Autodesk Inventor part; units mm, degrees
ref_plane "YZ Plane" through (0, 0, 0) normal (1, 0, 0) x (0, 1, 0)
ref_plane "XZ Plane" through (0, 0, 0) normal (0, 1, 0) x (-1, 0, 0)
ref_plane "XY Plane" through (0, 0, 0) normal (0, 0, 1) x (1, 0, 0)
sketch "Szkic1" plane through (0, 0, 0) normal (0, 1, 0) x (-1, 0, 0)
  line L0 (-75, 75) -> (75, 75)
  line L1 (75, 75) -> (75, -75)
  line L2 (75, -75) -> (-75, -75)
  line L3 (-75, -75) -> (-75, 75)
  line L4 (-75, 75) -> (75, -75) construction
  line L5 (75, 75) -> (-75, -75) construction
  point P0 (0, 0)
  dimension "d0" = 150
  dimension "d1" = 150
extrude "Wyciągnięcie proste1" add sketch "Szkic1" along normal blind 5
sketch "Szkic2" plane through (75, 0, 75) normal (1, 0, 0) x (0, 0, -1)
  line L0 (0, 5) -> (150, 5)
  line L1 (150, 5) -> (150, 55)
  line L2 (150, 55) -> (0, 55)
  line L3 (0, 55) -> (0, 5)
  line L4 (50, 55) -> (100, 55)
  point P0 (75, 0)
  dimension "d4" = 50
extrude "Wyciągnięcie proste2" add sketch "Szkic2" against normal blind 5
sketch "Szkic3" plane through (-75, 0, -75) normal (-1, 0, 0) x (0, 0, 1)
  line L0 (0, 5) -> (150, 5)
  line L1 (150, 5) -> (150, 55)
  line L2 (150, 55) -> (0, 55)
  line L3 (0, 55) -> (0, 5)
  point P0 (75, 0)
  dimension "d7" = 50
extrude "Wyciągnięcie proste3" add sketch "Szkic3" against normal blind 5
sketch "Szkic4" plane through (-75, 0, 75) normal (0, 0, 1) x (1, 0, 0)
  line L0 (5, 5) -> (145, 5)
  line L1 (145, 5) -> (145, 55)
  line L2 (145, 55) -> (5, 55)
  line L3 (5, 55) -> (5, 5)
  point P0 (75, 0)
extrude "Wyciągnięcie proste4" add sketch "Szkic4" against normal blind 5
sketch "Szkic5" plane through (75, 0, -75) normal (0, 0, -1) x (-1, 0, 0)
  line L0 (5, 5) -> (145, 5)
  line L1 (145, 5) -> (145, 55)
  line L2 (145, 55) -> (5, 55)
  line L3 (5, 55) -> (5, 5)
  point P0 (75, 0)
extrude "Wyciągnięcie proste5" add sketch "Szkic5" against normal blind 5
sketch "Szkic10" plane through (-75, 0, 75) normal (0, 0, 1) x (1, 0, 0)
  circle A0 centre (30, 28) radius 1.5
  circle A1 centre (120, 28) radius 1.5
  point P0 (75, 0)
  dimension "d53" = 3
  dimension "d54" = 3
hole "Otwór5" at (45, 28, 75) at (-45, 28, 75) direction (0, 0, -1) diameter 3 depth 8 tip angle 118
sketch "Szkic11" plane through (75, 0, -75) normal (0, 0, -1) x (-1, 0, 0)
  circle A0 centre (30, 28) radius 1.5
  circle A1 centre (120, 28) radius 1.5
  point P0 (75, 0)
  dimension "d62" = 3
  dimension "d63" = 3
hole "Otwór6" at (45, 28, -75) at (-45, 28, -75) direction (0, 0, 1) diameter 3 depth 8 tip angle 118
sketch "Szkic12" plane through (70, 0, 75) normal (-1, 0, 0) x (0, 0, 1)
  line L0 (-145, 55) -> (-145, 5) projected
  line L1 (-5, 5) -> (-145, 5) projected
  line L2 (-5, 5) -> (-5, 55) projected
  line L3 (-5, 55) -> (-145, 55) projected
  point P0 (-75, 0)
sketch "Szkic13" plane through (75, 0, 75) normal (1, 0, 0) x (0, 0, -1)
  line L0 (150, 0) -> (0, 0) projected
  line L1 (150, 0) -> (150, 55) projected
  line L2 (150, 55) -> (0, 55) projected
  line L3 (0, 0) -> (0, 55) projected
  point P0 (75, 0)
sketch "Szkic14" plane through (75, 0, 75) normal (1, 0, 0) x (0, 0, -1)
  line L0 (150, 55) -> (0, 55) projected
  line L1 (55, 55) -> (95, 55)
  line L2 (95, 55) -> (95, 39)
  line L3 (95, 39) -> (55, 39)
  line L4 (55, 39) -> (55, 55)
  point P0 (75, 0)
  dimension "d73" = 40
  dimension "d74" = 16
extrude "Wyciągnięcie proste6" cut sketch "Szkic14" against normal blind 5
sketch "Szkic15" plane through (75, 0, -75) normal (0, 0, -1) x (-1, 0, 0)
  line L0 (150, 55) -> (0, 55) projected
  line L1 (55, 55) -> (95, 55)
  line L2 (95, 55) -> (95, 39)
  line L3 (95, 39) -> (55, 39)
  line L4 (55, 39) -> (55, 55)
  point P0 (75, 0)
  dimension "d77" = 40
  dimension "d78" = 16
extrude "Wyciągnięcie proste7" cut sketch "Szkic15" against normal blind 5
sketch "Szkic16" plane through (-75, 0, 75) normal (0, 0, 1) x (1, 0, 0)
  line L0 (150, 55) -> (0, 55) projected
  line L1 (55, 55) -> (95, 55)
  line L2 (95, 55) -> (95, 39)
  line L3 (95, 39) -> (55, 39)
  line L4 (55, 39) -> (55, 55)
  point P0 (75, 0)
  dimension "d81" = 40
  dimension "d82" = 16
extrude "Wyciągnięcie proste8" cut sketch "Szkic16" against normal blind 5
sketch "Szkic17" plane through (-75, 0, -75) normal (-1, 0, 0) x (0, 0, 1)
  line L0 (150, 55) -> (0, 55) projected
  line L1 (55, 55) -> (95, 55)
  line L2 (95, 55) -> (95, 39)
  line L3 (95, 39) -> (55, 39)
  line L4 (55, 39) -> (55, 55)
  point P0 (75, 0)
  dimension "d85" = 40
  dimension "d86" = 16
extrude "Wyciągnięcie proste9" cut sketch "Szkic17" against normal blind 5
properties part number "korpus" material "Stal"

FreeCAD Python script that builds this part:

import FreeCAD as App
import Part
import Sketcher
from FreeCAD import Vector


def add_polygon(sketch, points):
    """Adds a closed chain of lines whose ends are joined by coincident constraints."""
    first, n = sketch.GeometryCount, len(points)
    for a, b in zip(points, points[1:] + points[:1]):
        sketch.addGeometry(Part.LineSegment(App.Vector(*a, 0), App.Vector(*b, 0)), False)
    for i in range(n):
        sketch.addConstraint(Sketcher.Constraint("Coincident", first + i, 2, first + (i + 1) % n, 1))

doc = App.newDocument("Part")
body = doc.addObject("PartDesign::Body", "Body")

# Sketch on XZ plane
sketch1 = doc.addObject("Sketcher::SketchObject", "Sketch")
body.addObject(sketch1)
sketch1.AttachmentSupport = (doc.XZ_Plane, [""])
sketch1.MapMode = "FlatFace"
add_polygon(sketch1, [(-75, 75), (75, 75), (75, -75), (-75, -75)])  # lines 0-3
sketch1.addConstraint(Sketcher.Constraint("Horizontal", 0))
sketch1.addConstraint(Sketcher.Constraint("Vertical", 1))
sketch1.addConstraint(Sketcher.Constraint("Horizontal", 2))
sketch1.addConstraint(Sketcher.Constraint("Vertical", 3))
sketch1.addConstraint(Sketcher.Constraint("Symmetric", 0, 2, 2, 2, -1, 1))
sketch1.addConstraint(Sketcher.Constraint("Equal", 2, 1))
sketch1.addConstraint(Sketcher.Constraint("DistanceX", 0, 1, 0, 2, 150.0))
pad1 = doc.addObject("PartDesign::Pad", "Pad")
body.addObject(pad1)
pad1.Profile = sketch1
pad1.Length = 5
pad1.Reversed = True

# Sketch on YZ plane
sketch2 = doc.addObject("Sketcher::SketchObject", "Sketch001")
body.addObject(sketch2)
sketch2.AttachmentSupport = (doc.YZ_Plane, [""])
sketch2.MapMode = "FlatFace"
sketch2.AttachmentOffset = App.Placement(Vector(0, 0, 75), App.Rotation())
add_polygon(sketch2, [(55, 75), (5, 75), (5, -75), (55, -75)])  # lines 0-3
sketch2.addConstraint(Sketcher.Constraint("Horizontal", 0))
sketch2.addConstraint(Sketcher.Constraint("Vertical", 1))
sketch2.addConstraint(Sketcher.Constraint("Horizontal", 2))
sketch2.addConstraint(Sketcher.Constraint("Vertical", 3))
sketch2.addConstraint(Sketcher.Constraint("DistanceX", 0, 2, 0, 1, 50.0))
sketch2.addConstraint(Sketcher.Constraint("DistanceY", 1, 2, 1, 1, 150.0))
sketch2.addConstraint(Sketcher.Constraint("DistanceX", -1, 1, 0, 2, 5.0))
sketch2.addConstraint(Sketcher.Constraint("DistanceY", -1, 1, 0, 2, 75.0))
pad2 = doc.addObject("PartDesign::Pad", "Pad001")
body.addObject(pad2)
pad2.Profile = sketch2
pad2.Length = 5
pad2.Reversed = True

# Sketch on YZ plane
sketch3 = doc.addObject("Sketcher::SketchObject", "Sketch002")
body.addObject(sketch3)
sketch3.AttachmentSupport = (doc.YZ_Plane, [""])
sketch3.MapMode = "FlatFace"
sketch3.AttachmentOffset = App.Placement(Vector(0, 0, -75), App.Rotation())
add_polygon(sketch3, [(55, -75), (5, -75), (5, 75), (55, 75)])  # lines 0-3
sketch3.addConstraint(Sketcher.Constraint("Horizontal", 0))
sketch3.addConstraint(Sketcher.Constraint("Vertical", 1))
sketch3.addConstraint(Sketcher.Constraint("Horizontal", 2))
sketch3.addConstraint(Sketcher.Constraint("Vertical", 3))
sketch3.addConstraint(Sketcher.Constraint("DistanceX", 0, 2, 0, 1, 50.0))
sketch3.addConstraint(Sketcher.Constraint("DistanceY", 1, 1, 1, 2, 150.0))
sketch3.addConstraint(Sketcher.Constraint("DistanceX", -1, 1, 0, 2, 5.0))
sketch3.addConstraint(Sketcher.Constraint("DistanceY", 0, 2, -1, 1, 75.0))
pad3 = doc.addObject("PartDesign::Pad", "Pad002")
body.addObject(pad3)
pad3.Profile = sketch3
pad3.Length = 5

# Sketch on XY plane
sketch4 = doc.addObject("Sketcher::SketchObject", "Sketch003")
body.addObject(sketch4)
sketch4.AttachmentSupport = (doc.XY_Plane, [""])
sketch4.MapMode = "FlatFace"
sketch4.AttachmentOffset = App.Placement(Vector(0, 0, 75), App.Rotation())
add_polygon(sketch4, [(-70, 55), (-70, 5), (70, 5), (70, 55)])  # lines 0-3
sketch4.addConstraint(Sketcher.Constraint("Vertical", 0))
sketch4.addConstraint(Sketcher.Constraint("Horizontal", 1))
sketch4.addConstraint(Sketcher.Constraint("Vertical", 2))
sketch4.addConstraint(Sketcher.Constraint("Horizontal", 3))
sketch4.addConstraint(Sketcher.Constraint("DistanceX", 1, 1, 1, 2, 140.0))
sketch4.addConstraint(Sketcher.Constraint("DistanceY", 0, 2, 0, 1, 50.0))
sketch4.addConstraint(Sketcher.Constraint("DistanceX", 0, 2, -1, 1, 70.0))
sketch4.addConstraint(Sketcher.Constraint("DistanceY", -1, 1, 0, 2, 5.0))
pad4 = doc.addObject("PartDesign::Pad", "Pad003")
body.addObject(pad4)
pad4.Profile = sketch4
pad4.Length = 5
pad4.Reversed = True

# Sketch on XY plane
sketch5 = doc.addObject("Sketcher::SketchObject", "Sketch004")
body.addObject(sketch5)
sketch5.AttachmentSupport = (doc.XY_Plane, [""])
sketch5.MapMode = "FlatFace"
sketch5.AttachmentOffset = App.Placement(Vector(0, 0, -75), App.Rotation())
add_polygon(sketch5, [(70, 55), (70, 5), (-70, 5), (-70, 55)])  # lines 0-3
sketch5.addConstraint(Sketcher.Constraint("Vertical", 0))
sketch5.addConstraint(Sketcher.Constraint("Horizontal", 1))
sketch5.addConstraint(Sketcher.Constraint("Vertical", 2))
sketch5.addConstraint(Sketcher.Constraint("Horizontal", 3))
sketch5.addConstraint(Sketcher.Constraint("DistanceX", 1, 2, 1, 1, 140.0))
sketch5.addConstraint(Sketcher.Constraint("DistanceY", 0, 2, 0, 1, 50.0))
sketch5.addConstraint(Sketcher.Constraint("DistanceX", -1, 1, 0, 2, 70.0))
sketch5.addConstraint(Sketcher.Constraint("DistanceY", -1, 1, 0, 2, 5.0))
pad5 = doc.addObject("PartDesign::Pad", "Pad004")
body.addObject(pad5)
pad5.Profile = sketch5
pad5.Length = 5

# Sketch on XY plane
sketch6 = doc.addObject("Sketcher::SketchObject", "Sketch005")
body.addObject(sketch6)
sketch6.AttachmentSupport = (doc.XY_Plane, [""])
sketch6.MapMode = "FlatFace"
sketch6.AttachmentOffset = App.Placement(Vector(0, 0, 75), App.Rotation())
sketch6.addGeometry(Part.Circle(Vector(45, 28, 0), Vector(0, 0, 1), 1.5), False)
sketch6.addGeometry(Part.Circle(Vector(-45, 28, 0), Vector(0, 0, 1), 1.5), False)
sketch6.addConstraint(Sketcher.Constraint("Equal", 0, 1))
sketch6.addConstraint(Sketcher.Constraint("Symmetric", 0, 3, 1, 3, -2))
sketch6.addConstraint(Sketcher.Constraint("Diameter", 0, 3.0))
sketch6.addConstraint(Sketcher.Constraint("DistanceX", -1, 1, 0, 3, 45.0))
sketch6.addConstraint(Sketcher.Constraint("DistanceY", -1, 1, 0, 3, 28.0))
doc.recompute()
hole = doc.addObject("PartDesign::Hole", "Hole")
body.addObject(hole)
hole.Profile = sketch6
hole.ThreadType = "None"
hole.Diameter = 3
hole.DepthType = "Dimension"
hole.Depth = 8
hole.DrillPoint = "Angled"
hole.DrillPointAngle = 118

# Sketch on XY plane
sketch7 = doc.addObject("Sketcher::SketchObject", "Sketch006")
body.addObject(sketch7)
sketch7.AttachmentSupport = (doc.XY_Plane, [""])
sketch7.MapMode = "FlatFace"
sketch7.AttachmentOffset = App.Placement(Vector(0, 0, -75), App.Rotation())
sketch7.addGeometry(Part.Circle(Vector(45, 28, 0), Vector(0, 0, 1), 1.5), False)
sketch7.addGeometry(Part.Circle(Vector(-45, 28, 0), Vector(0, 0, 1), 1.5), False)
sketch7.addConstraint(Sketcher.Constraint("Equal", 0, 1))
sketch7.addConstraint(Sketcher.Constraint("Symmetric", 0, 3, 1, 3, -2))
sketch7.addConstraint(Sketcher.Constraint("Diameter", 0, 3.0))
sketch7.addConstraint(Sketcher.Constraint("DistanceX", -1, 1, 0, 3, 45.0))
sketch7.addConstraint(Sketcher.Constraint("DistanceY", -1, 1, 0, 3, 28.0))
doc.recompute()
hole2 = doc.addObject("PartDesign::Hole", "Hole001")
body.addObject(hole2)
hole2.Profile = sketch7
hole2.ThreadType = "None"
hole2.Diameter = 3
hole2.DepthType = "Dimension"
hole2.Depth = 8
hole2.DrillPoint = "Angled"
hole2.DrillPointAngle = 118
hole2.Reversed = True

# Sketch on YZ plane
sketch8 = doc.addObject("Sketcher::SketchObject", "Sketch007")
body.addObject(sketch8)
sketch8.AttachmentSupport = (doc.YZ_Plane, [""])
sketch8.MapMode = "FlatFace"
sketch8.AttachmentOffset = App.Placement(Vector(0, 0, 75), App.Rotation())
add_polygon(sketch8, [(39, -20), (55, -20), (55, 20), (39, 20)])  # lines 0-3
sketch8.addConstraint(Sketcher.Constraint("Horizontal", 0))
sketch8.addConstraint(Sketcher.Constraint("Vertical", 1))
sketch8.addConstraint(Sketcher.Constraint("Horizontal", 2))
sketch8.addConstraint(Sketcher.Constraint("Vertical", 3))
sketch8.addConstraint(Sketcher.Constraint("DistanceX", 0, 1, 0, 2, 16.0))
sketch8.addConstraint(Sketcher.Constraint("DistanceY", 1, 1, 1, 2, 40.0))
sketch8.addConstraint(Sketcher.Constraint("DistanceX", -1, 1, 0, 2, 55.0))
sketch8.addConstraint(Sketcher.Constraint("DistanceY", 0, 2, -1, 1, 20.0))
pocket1 = doc.addObject("PartDesign::Pocket", "Pocket")
body.addObject(pocket1)
pocket1.Profile = sketch8
pocket1.Length = 5

# Sketch on XY plane
sketch9 = doc.addObject("Sketcher::SketchObject", "Sketch008")
body.addObject(sketch9)
sketch9.AttachmentSupport = (doc.XY_Plane, [""])
sketch9.MapMode = "FlatFace"
sketch9.AttachmentOffset = App.Placement(Vector(0, 0, -75), App.Rotation())
add_polygon(sketch9, [(-20, 39), (-20, 55), (20, 55), (20, 39)])  # lines 0-3
sketch9.addConstraint(Sketcher.Constraint("Vertical", 0))
sketch9.addConstraint(Sketcher.Constraint("Horizontal", 1))
sketch9.addConstraint(Sketcher.Constraint("Vertical", 2))
sketch9.addConstraint(Sketcher.Constraint("Horizontal", 3))
sketch9.addConstraint(Sketcher.Constraint("DistanceX", 1, 1, 1, 2, 40.0))
sketch9.addConstraint(Sketcher.Constraint("DistanceY", 0, 1, 0, 2, 16.0))
sketch9.addConstraint(Sketcher.Constraint("DistanceX", 0, 2, -1, 1, 20.0))
sketch9.addConstraint(Sketcher.Constraint("DistanceY", -1, 1, 0, 2, 55.0))
pocket2 = doc.addObject("PartDesign::Pocket", "Pocket001")
body.addObject(pocket2)
pocket2.Profile = sketch9
pocket2.Length = 5
pocket2.Reversed = True

# Sketch on XY plane
sketch10 = doc.addObject("Sketcher::SketchObject", "Sketch009")
body.addObject(sketch10)
sketch10.AttachmentSupport = (doc.XY_Plane, [""])
sketch10.MapMode = "FlatFace"
sketch10.AttachmentOffset = App.Placement(Vector(0, 0, 75), App.Rotation())
add_polygon(sketch10, [(20, 39), (20, 55), (-20, 55), (-20, 39)])  # lines 0-3
sketch10.addConstraint(Sketcher.Constraint("Vertical", 0))
sketch10.addConstraint(Sketcher.Constraint("Horizontal", 1))
sketch10.addConstraint(Sketcher.Constraint("Vertical", 2))
sketch10.addConstraint(Sketcher.Constraint("Horizontal", 3))
sketch10.addConstraint(Sketcher.Constraint("DistanceX", 1, 2, 1, 1, 40.0))
sketch10.addConstraint(Sketcher.Constraint("DistanceY", 0, 1, 0, 2, 16.0))
sketch10.addConstraint(Sketcher.Constraint("DistanceX", -1, 1, 0, 2, 20.0))
sketch10.addConstraint(Sketcher.Constraint("DistanceY", -1, 1, 0, 2, 55.0))
pocket3 = doc.addObject("PartDesign::Pocket", "Pocket002")
body.addObject(pocket3)
pocket3.Profile = sketch10
pocket3.Length = 5

# Sketch on YZ plane
sketch11 = doc.addObject("Sketcher::SketchObject", "Sketch010")
body.addObject(sketch11)
sketch11.AttachmentSupport = (doc.YZ_Plane, [""])
sketch11.MapMode = "FlatFace"
sketch11.AttachmentOffset = App.Placement(Vector(0, 0, -75), App.Rotation())
add_polygon(sketch11, [(39, 20), (55, 20), (55, -20), (39, -20)])  # lines 0-3
sketch11.addConstraint(Sketcher.Constraint("Horizontal", 0))
sketch11.addConstraint(Sketcher.Constraint("Vertical", 1))
sketch11.addConstraint(Sketcher.Constraint("Horizontal", 2))
sketch11.addConstraint(Sketcher.Constraint("Vertical", 3))
sketch11.addConstraint(Sketcher.Constraint("DistanceX", 0, 1, 0, 2, 16.0))
sketch11.addConstraint(Sketcher.Constraint("DistanceY", 1, 2, 1, 1, 40.0))
sketch11.addConstraint(Sketcher.Constraint("DistanceX", -1, 1, 0, 2, 55.0))
sketch11.addConstraint(Sketcher.Constraint("DistanceY", -1, 1, 0, 2, 20.0))
pocket4 = doc.addObject("PartDesign::Pocket", "Pocket003")
body.addObject(pocket4)
pocket4.Profile = sketch11
pocket4.Length = 5
pocket4.Reversed = True

doc.recompute()
